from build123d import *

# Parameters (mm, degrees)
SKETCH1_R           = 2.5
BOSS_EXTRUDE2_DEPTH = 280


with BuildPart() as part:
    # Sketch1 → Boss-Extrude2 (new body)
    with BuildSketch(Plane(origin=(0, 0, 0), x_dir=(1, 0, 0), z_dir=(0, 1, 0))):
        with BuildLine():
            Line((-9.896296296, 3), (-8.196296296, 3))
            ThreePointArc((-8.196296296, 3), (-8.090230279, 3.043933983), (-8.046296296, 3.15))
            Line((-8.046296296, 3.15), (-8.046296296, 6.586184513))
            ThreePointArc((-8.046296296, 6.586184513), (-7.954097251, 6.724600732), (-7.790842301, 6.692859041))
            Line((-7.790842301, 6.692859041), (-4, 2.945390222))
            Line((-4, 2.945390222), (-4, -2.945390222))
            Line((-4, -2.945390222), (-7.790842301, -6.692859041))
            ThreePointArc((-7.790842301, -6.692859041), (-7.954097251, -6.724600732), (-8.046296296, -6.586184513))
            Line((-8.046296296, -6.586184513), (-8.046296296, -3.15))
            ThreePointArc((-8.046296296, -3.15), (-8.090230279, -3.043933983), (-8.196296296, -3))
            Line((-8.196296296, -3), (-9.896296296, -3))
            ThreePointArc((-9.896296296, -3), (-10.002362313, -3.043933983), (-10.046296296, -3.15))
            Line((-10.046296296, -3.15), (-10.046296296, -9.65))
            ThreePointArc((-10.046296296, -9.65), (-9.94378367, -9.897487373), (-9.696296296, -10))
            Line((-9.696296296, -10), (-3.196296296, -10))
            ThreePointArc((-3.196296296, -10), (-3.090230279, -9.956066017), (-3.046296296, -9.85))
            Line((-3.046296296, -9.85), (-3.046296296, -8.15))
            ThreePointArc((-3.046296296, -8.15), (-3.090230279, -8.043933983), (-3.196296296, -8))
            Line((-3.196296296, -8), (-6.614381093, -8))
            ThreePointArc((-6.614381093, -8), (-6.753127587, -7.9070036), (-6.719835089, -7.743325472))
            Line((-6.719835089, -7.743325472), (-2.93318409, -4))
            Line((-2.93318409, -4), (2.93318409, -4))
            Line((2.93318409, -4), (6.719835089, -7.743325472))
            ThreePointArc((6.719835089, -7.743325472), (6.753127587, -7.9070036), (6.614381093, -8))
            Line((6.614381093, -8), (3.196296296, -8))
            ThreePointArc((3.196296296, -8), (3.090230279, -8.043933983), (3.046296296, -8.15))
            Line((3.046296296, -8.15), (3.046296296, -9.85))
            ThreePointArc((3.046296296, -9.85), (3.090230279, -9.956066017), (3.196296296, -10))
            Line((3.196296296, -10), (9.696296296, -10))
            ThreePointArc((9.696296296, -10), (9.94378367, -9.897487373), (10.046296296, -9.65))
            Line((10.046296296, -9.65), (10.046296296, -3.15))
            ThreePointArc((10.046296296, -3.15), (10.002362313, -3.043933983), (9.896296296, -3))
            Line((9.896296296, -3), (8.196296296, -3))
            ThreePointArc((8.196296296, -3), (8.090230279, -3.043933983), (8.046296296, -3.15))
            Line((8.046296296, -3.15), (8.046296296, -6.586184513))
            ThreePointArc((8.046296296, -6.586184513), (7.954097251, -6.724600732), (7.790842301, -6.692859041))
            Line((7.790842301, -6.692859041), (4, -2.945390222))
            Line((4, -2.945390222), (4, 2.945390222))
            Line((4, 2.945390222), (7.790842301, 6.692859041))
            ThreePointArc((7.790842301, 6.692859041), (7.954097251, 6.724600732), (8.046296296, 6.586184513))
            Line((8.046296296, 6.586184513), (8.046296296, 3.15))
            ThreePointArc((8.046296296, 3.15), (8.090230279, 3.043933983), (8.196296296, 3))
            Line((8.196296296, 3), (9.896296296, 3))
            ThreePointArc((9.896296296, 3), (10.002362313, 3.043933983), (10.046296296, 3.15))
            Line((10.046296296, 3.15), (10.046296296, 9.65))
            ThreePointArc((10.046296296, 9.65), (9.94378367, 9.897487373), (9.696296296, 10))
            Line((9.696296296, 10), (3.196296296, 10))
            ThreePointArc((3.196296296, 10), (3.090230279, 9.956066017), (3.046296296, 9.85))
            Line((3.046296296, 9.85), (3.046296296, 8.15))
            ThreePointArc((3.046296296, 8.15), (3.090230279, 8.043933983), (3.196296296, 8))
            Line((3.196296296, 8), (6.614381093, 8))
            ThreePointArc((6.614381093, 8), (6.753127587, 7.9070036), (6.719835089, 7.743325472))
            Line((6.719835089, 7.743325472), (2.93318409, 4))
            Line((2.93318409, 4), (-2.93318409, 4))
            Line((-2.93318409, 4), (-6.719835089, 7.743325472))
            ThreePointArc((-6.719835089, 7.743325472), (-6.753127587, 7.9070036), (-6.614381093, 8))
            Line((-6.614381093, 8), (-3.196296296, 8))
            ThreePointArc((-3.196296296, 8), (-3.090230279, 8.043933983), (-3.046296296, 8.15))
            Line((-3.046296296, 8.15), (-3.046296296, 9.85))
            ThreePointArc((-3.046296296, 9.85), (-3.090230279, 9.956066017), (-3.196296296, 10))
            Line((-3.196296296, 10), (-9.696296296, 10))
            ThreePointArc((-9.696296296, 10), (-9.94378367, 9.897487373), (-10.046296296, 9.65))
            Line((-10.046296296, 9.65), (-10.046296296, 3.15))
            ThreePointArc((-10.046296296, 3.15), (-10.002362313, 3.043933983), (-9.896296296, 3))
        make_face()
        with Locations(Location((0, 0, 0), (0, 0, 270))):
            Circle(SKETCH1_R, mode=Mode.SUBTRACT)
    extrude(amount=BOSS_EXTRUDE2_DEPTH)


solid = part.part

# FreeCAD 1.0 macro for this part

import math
import FreeCAD as App
import Part
import Sketcher

doc = App.newDocument("Part")
body = doc.addObject("PartDesign::Body", "Body")

sketch1 = body.newObject("Sketcher::SketchObject", "Sketch")
sketch1.AttachmentSupport = (doc.getObject("XZ_Plane"), [""])
sketch1.MapMode = "FlatFace"
sketch1.addGeometry([
    Part.LineSegment(App.Vector(-9.9, -3, 0), App.Vector(-8.2, -3, 0)),
    Part.ArcOfCircle(Part.Circle(App.Vector(-8.2, -3.15, 0), App.Vector(0, 0, 1), 0.15), math.radians(0), math.radians(90)),
    Part.LineSegment(App.Vector(-8.05, -3.15, 0), App.Vector(-8.05, -6.59, 0)),
    Part.ArcOfCircle(Part.Circle(App.Vector(-7.9, -6.59, 0), App.Vector(0, 0, 1), 0.15), math.radians(180), math.radians(315)),
    Part.LineSegment(App.Vector(-7.79, -6.69, 0), App.Vector(-4, -2.95, 0)),
    Part.LineSegment(App.Vector(-4, -2.95, 0), App.Vector(-4, 2.95, 0)),
    Part.LineSegment(App.Vector(-4, 2.95, 0), App.Vector(-7.79, 6.69, 0)),
    Part.ArcOfCircle(Part.Circle(App.Vector(-7.9, 6.59, 0), App.Vector(0, 0, 1), 0.15), math.radians(45), math.radians(180)),
    Part.LineSegment(App.Vector(-8.05, 6.59, 0), App.Vector(-8.05, 3.15, 0)),
    Part.ArcOfCircle(Part.Circle(App.Vector(-8.2, 3.15, 0), App.Vector(0, 0, 1), 0.15), math.radians(-90), math.radians(0)),
    Part.LineSegment(App.Vector(-8.2, 3, 0), App.Vector(-9.9, 3, 0)),
    Part.ArcOfCircle(Part.Circle(App.Vector(-9.9, 3.15, 0), App.Vector(0, 0, 1), 0.15), math.radians(-180), math.radians(-90)),
    Part.LineSegment(App.Vector(-10.05, 3.15, 0), App.Vector(-10.05, 9.65, 0)),
    Part.ArcOfCircle(Part.Circle(App.Vector(-9.7, 9.65, 0), App.Vector(0, 0, 1), 0.35), math.radians(90), math.radians(180)),
    Part.LineSegment(App.Vector(-9.7, 10, 0), App.Vector(-3.2, 10, 0)),
    Part.ArcOfCircle(Part.Circle(App.Vector(-3.2, 9.85, 0), App.Vector(0, 0, 1), 0.15), math.radians(0), math.radians(90)),
    Part.LineSegment(App.Vector(-3.05, 9.85, 0), App.Vector(-3.05, 8.15, 0)),
    Part.ArcOfCircle(Part.Circle(App.Vector(-3.2, 8.15, 0), App.Vector(0, 0, 1), 0.15), math.radians(-90), math.radians(0)),
    Part.LineSegment(App.Vector(-3.2, 8, 0), App.Vector(-6.61, 8, 0)),
    Part.ArcOfCircle(Part.Circle(App.Vector(-6.61, 7.85, 0), App.Vector(0, 0, 1), 0.15), math.radians(90), math.radians(225)),
    Part.LineSegment(App.Vector(-6.72, 7.74, 0), App.Vector(-2.93, 4, 0)),
    Part.LineSegment(App.Vector(-2.93, 4, 0), App.Vector(2.93, 4, 0)),
    Part.LineSegment(App.Vector(2.93, 4, 0), App.Vector(6.72, 7.74, 0)),
    Part.ArcOfCircle(Part.Circle(App.Vector(6.61, 7.85, 0), App.Vector(0, 0, 1), 0.15), math.radians(-45), math.radians(90)),
    Part.LineSegment(App.Vector(6.61, 8, 0), App.Vector(3.2, 8, 0)),
    Part.ArcOfCircle(Part.Circle(App.Vector(3.2, 8.15, 0), App.Vector(0, 0, 1), 0.15), math.radians(-180), math.radians(-90)),
    Part.LineSegment(App.Vector(3.05, 8.15, 0), App.Vector(3.05, 9.85, 0)),
    Part.ArcOfCircle(Part.Circle(App.Vector(3.2, 9.85, 0), App.Vector(0, 0, 1), 0.15), math.radians(90), math.radians(180)),
    Part.LineSegment(App.Vector(3.2, 10, 0), App.Vector(9.7, 10, 0)),
    Part.ArcOfCircle(Part.Circle(App.Vector(9.7, 9.65, 0), App.Vector(0, 0, 1), 0.35), math.radians(0), math.radians(90)),
    Part.LineSegment(App.Vector(10.05, 9.65, 0), App.Vector(10.05, 3.15, 0)),
    Part.ArcOfCircle(Part.Circle(App.Vector(9.9, 3.15, 0), App.Vector(0, 0, 1), 0.15), math.radians(-90), math.radians(0)),
    Part.LineSegment(App.Vector(9.9, 3, 0), App.Vector(8.2, 3, 0)),
    Part.ArcOfCircle(Part.Circle(App.Vector(8.2, 3.15, 0), App.Vector(0, 0, 1), 0.15), math.radians(-180), math.radians(-90)),
    Part.LineSegment(App.Vector(8.05, 3.15, 0), App.Vector(8.05, 6.59, 0)),
    Part.ArcOfCircle(Part.Circle(App.Vector(7.9, 6.59, 0), App.Vector(0, 0, 1), 0.15), math.radians(0), math.radians(135)),
    Part.LineSegment(App.Vector(7.79, 6.69, 0), App.Vector(4, 2.95, 0)),
    Part.LineSegment(App.Vector(4, 2.95, 0), App.Vector(4, -2.95, 0)),
    Part.LineSegment(App.Vector(4, -2.95, 0), App.Vector(7.79, -6.69, 0)),
    Part.ArcOfCircle(Part.Circle(App.Vector(7.9, -6.59, 0), App.Vector(0, 0, 1), 0.15), math.radians(-135), math.radians(0)),
    Part.LineSegment(App.Vector(8.05, -6.59, 0), App.Vector(8.05, -3.15, 0)),
    Part.ArcOfCircle(Part.Circle(App.Vector(8.2, -3.15, 0), App.Vector(0, 0, 1), 0.15), math.radians(90), math.radians(180)),
    Part.LineSegment(App.Vector(8.2, -3, 0), App.Vector(9.9, -3, 0)),
    Part.ArcOfCircle(Part.Circle(App.Vector(9.9, -3.15, 0), App.Vector(0, 0, 1), 0.15), math.radians(0), math.radians(90)),
    Part.LineSegment(App.Vector(10.05, -3.15, 0), App.Vector(10.05, -9.65, 0)),
    Part.ArcOfCircle(Part.Circle(App.Vector(9.7, -9.65, 0), App.Vector(0, 0, 1), 0.35), math.radians(-90), math.radians(0)),
    Part.LineSegment(App.Vector(9.7, -10, 0), App.Vector(3.2, -10, 0)),
    Part.ArcOfCircle(Part.Circle(App.Vector(3.2, -9.85, 0), App.Vector(0, 0, 1), 0.15), math.radians(-180), math.radians(-90)),
    Part.LineSegment(App.Vector(3.05, -9.85, 0), App.Vector(3.05, -8.15, 0)),
    Part.ArcOfCircle(Part.Circle(App.Vector(3.2, -8.15, 0), App.Vector(0, 0, 1), 0.15), math.radians(90), math.radians(180)),
    Part.LineSegment(App.Vector(3.2, -8, 0), App.Vector(6.61, -8, 0)),
    Part.ArcOfCircle(Part.Circle(App.Vector(6.61, -7.85, 0), App.Vector(0, 0, 1), 0.15), math.radians(-90), math.radians(45)),
    Part.LineSegment(App.Vector(6.72, -7.74, 0), App.Vector(2.93, -4, 0)),
    Part.LineSegment(App.Vector(2.93, -4, 0), App.Vector(-2.93, -4, 0)),
    Part.LineSegment(App.Vector(-2.93, -4, 0), App.Vector(-6.72, -7.74, 0)),
    Part.ArcOfCircle(Part.Circle(App.Vector(-6.61, -7.85, 0), App.Vector(0, 0, 1), 0.15), math.radians(135), math.radians(270)),
    Part.LineSegment(App.Vector(-6.61, -8, 0), App.Vector(-3.2, -8, 0)),
    Part.ArcOfCircle(Part.Circle(App.Vector(-3.2, -8.15, 0), App.Vector(0, 0, 1), 0.15), math.radians(0), math.radians(90)),
    Part.LineSegment(App.Vector(-3.05, -8.15, 0), App.Vector(-3.05, -9.85, 0)),
    Part.ArcOfCircle(Part.Circle(App.Vector(-3.2, -9.85, 0), App.Vector(0, 0, 1), 0.15), math.radians(-90), math.radians(0)),
    Part.LineSegment(App.Vector(-3.2, -10, 0), App.Vector(-9.7, -10, 0)),
    Part.ArcOfCircle(Part.Circle(App.Vector(-9.7, -9.65, 0), App.Vector(0, 0, 1), 0.35), math.radians(180), math.radians(270)),
    Part.LineSegment(App.Vector(-10.05, -9.65, 0), App.Vector(-10.05, -3.15, 0)),
    Part.ArcOfCircle(Part.Circle(App.Vector(-9.9, -3.15, 0), App.Vector(0, 0, 1), 0.15), math.radians(90), math.radians(180)),
    Part.Circle(App.Vector(0, 0, 0), App.Vector(0, 0, 1), 2.5),
], False)
sketch1.addConstraint([
    Sketcher.Constraint("Tangent", 0, 2, 1, 2),
    Sketcher.Constraint("Tangent", 1, 1, 2, 1),
    Sketcher.Constraint("Tangent", 2, 2, 3, 1),
    Sketcher.Constraint("Tangent", 3, 2, 4, 1),
    Sketcher.Constraint("Coincident", 4, 2, 5, 1),
    Sketcher.Constraint("Coincident", 5, 2, 6, 1),
    Sketcher.Constraint("Tangent", 6, 2, 7, 1),
    Sketcher.Constraint("Tangent", 7, 2, 8, 1),
    Sketcher.Constraint("Tangent", 8, 2, 9, 2),
    Sketcher.Constraint("Tangent", 9, 1, 10, 1),
    Sketcher.Constraint("Tangent", 10, 2, 11, 2),
    Sketcher.Constraint("Tangent", 11, 1, 12, 1),
    Sketcher.Constraint("Tangent", 12, 2, 13, 2),
    Sketcher.Constraint("Tangent", 13, 1, 14, 1),
    Sketcher.Constraint("Tangent", 14, 2, 15, 2),
    Sketcher.Constraint("Tangent", 15, 1, 16, 1),
    Sketcher.Constraint("Tangent", 16, 2, 17, 2),
    Sketcher.Constraint("Tangent", 17, 1, 18, 1),
    Sketcher.Constraint("Tangent", 18, 2, 19, 1),
    Sketcher.Constraint("Tangent", 19, 2, 20, 1),
    Sketcher.Constraint("Coincident", 20, 2, 21, 1),
    Sketcher.Constraint("Coincident", 21, 2, 22, 1),
    Sketcher.Constraint("Tangent", 22, 2, 23, 1),
    Sketcher.Constraint("Tangent", 23, 2, 24, 1),
    Sketcher.Constraint("Tangent", 24, 2, 25, 2),
    Sketcher.Constraint("Tangent", 25, 1, 26, 1),
    Sketcher.Constraint("Tangent", 26, 2, 27, 2),
    Sketcher.Constraint("Tangent", 27, 1, 28, 1),
    Sketcher.Constraint("Tangent", 28, 2, 29, 2),
    Sketcher.Constraint("Tangent", 29, 1, 30, 1),
    Sketcher.Constraint("Tangent", 30, 2, 31, 2),
    Sketcher.Constraint("Tangent", 31, 1, 32, 1),
    Sketcher.Constraint("Tangent", 32, 2, 33, 2),
    Sketcher.Constraint("Tangent", 33, 1, 34, 1),
    Sketcher.Constraint("Tangent", 34, 2, 35, 1),
    Sketcher.Constraint("Tangent", 35, 2, 36, 1),
    Sketcher.Constraint("Coincident", 36, 2, 37, 1),
    Sketcher.Constraint("Coincident", 37, 2, 38, 1),
    Sketcher.Constraint("Tangent", 38, 2, 39, 1),
    Sketcher.Constraint("Tangent", 39, 2, 40, 1),
    Sketcher.Constraint("Tangent", 40, 2, 41, 2),
    Sketcher.Constraint("Tangent", 41, 1, 42, 1),
    Sketcher.Constraint("Tangent", 42, 2, 43, 2),
    Sketcher.Constraint("Tangent", 43, 1, 44, 1),
    Sketcher.Constraint("Tangent", 44, 2, 45, 2),
    Sketcher.Constraint("Tangent", 45, 1, 46, 1),
    Sketcher.Constraint("Tangent", 46, 2, 47, 2),
    Sketcher.Constraint("Tangent", 47, 1, 48, 1),
    Sketcher.Constraint("Tangent", 48, 2, 49, 2),
    Sketcher.Constraint("Tangent", 49, 1, 50, 1),
    Sketcher.Constraint("Tangent", 50, 2, 51, 1),
    Sketcher.Constraint("Tangent", 51, 2, 52, 1),
    Sketcher.Constraint("Coincident", 52, 2, 53, 1),
    Sketcher.Constraint("Coincident", 53, 2, 54, 1),
    Sketcher.Constraint("Tangent", 54, 2, 55, 1),
    Sketcher.Constraint("Tangent", 55, 2, 56, 1),
    Sketcher.Constraint("Tangent", 56, 2, 57, 2),
    Sketcher.Constraint("Tangent", 57, 1, 58, 1),
    Sketcher.Constraint("Tangent", 58, 2, 59, 2),
    Sketcher.Constraint("Tangent", 59, 1, 60, 1),
    Sketcher.Constraint("Tangent", 60, 2, 61, 2),
    Sketcher.Constraint("Tangent", 61, 1, 62, 1),
    Sketcher.Constraint("Tangent", 62, 2, 63, 2),
    Sketcher.Constraint("Tangent", 63, 1, 0, 1),
    Sketcher.Constraint("Horizontal", 0),
    Sketcher.Constraint("Vertical", 2),
    Sketcher.Constraint("Vertical", 5),
    Sketcher.Constraint("Vertical", 8),
    Sketcher.Constraint("Horizontal", 10),
    Sketcher.Constraint("Vertical", 12),
    Sketcher.Constraint("Horizontal", 14),
    Sketcher.Constraint("Vertical", 16),
    Sketcher.Constraint("Horizontal", 18),
    Sketcher.Constraint("Horizontal", 21),
    Sketcher.Constraint("Horizontal", 24),
    Sketcher.Constraint("Vertical", 26),
    Sketcher.Constraint("Horizontal", 28),
    Sketcher.Constraint("Vertical", 30),
    Sketcher.Constraint("Horizontal", 32),
    Sketcher.Constraint("Vertical", 34),
    Sketcher.Constraint("Vertical", 37),
    Sketcher.Constraint("Vertical", 40),
    Sketcher.Constraint("Horizontal", 42),
    Sketcher.Constraint("Vertical", 44),
    Sketcher.Constraint("Horizontal", 46),
    Sketcher.Constraint("Vertical", 48),
    Sketcher.Constraint("Horizontal", 50),
    Sketcher.Constraint("Horizontal", 53),
    Sketcher.Constraint("Horizontal", 56),
    Sketcher.Constraint("Vertical", 58),
    Sketcher.Constraint("Horizontal", 60),
    Sketcher.Constraint("Vertical", 62),
    Sketcher.Constraint("Coincident", 64, 3, -1, 1),
    Sketcher.Constraint("Equal", 1, 3),
    Sketcher.Constraint("Equal", 3, 7),
    Sketcher.Constraint("Equal", 7, 9),
    Sketcher.Constraint("Equal", 9, 11),
    Sketcher.Constraint("Equal", 11, 15),
    Sketcher.Constraint("Equal", 15, 17),
    Sketcher.Constraint("Equal", 17, 19),
    Sketcher.Constraint("Equal", 19, 23),
    Sketcher.Constraint("Equal", 23, 25),
    Sketcher.Constraint("Equal", 25, 27),
    Sketcher.Constraint("Equal", 13, 29),
    Sketcher.Constraint("Equal", 27, 31),
    Sketcher.Constraint("Equal", 31, 33),
    Sketcher.Constraint("Equal", 33, 35),
    Sketcher.Constraint("Equal", 35, 39),
    Sketcher.Constraint("Equal", 39, 41),
    Sketcher.Constraint("Equal", 41, 43),
    Sketcher.Constraint("Equal", 29, 45),
    Sketcher.Constraint("Equal", 43, 47),
    Sketcher.Constraint("Equal", 47, 49),
    Sketcher.Constraint("Equal", 49, 51),
    Sketcher.Constraint("Equal", 51, 55),
    Sketcher.Constraint("Equal", 55, 57),
    Sketcher.Constraint("Equal", 57, 59),
    Sketcher.Constraint("Equal", 45, 61),
    Sketcher.Constraint("Equal", 59, 63),
    Sketcher.Constraint("Symmetric", 1, 3, 33, 3, -1, 1),
    Sketcher.Constraint("Symmetric", 7, 3, 39, 3, -1, 1),
    Sketcher.Constraint("Symmetric", 11, 3, 43, 3, -1, 1),
    Sketcher.Constraint("Symmetric", 15, 3, 47, 3, -1, 1),
    Sketcher.Constraint("Symmetric", 19, 3, 51, 3, -1, 1),
    Sketcher.Constraint("Symmetric", 23, 3, 55, 3, -1, 1),
    Sketcher.Constraint("Symmetric", 27, 3, 59, 3, -1, 1),
    Sketcher.Constraint("Symmetric", 3, 2, 35, 2, -1, 1),
    Sketcher.Constraint("Symmetric", 5, 2, 37, 2, -1, 1),
    Sketcher.Constraint("Symmetric", 20, 2, 52, 2, -1, 1),
    Sketcher.Constraint("Symmetric", 19, 3, 23, 3, -2),
    Sketcher.Constraint("Symmetric", 15, 3, 27, 3, -2),
    Sketcher.Constraint("Symmetric", 11, 3, 31, 3, -2),
    Sketcher.Constraint("Symmetric", 7, 3, 35, 3, -2),
    Sketcher.Constraint("Parallel", 6, 20),
    Sketcher.Constraint("Parallel", 4, 22),
    Sketcher.Constraint("Parallel", 36, 54),
    Sketcher.Constraint("Horizontal", 19, 2, 22, 2),
    Sketcher.Constraint("Vertical", 13, 3, 61, 3),
    Sketcher.Constraint("Equal", 60, 12),
    Sketcher.Constraint("Equal", 42, 16),
    Sketcher.Constraint("Diameter", 64, 5.0),
    Sketcher.Constraint("Radius", 1, 0.15),
    Sketcher.Constraint("Radius", 13, 0.35),
    Sketcher.Constraint("DistanceX", 0, 1, 0, 2, 1.7),
    Sketcher.Constraint("DistanceX", 14, 1, 14, 2, 6.5),
    Sketcher.Constraint("DistanceY", 0, 2, -1, 1, 3.0),
    Sketcher.Constraint("DistanceX", 4, 2, -1, 1, 4.0),
    Sketcher.Constraint("DistanceY", -1, 1, 20, 2, 4.0),
    Sketcher.Constraint("DistanceX", 21, 1, 21, 2, 5.866368),
    Sketcher.Constraint("DistanceY", 5, 1, 5, 2, 5.89078),
    Sketcher.Constraint("Distance", 4, 5.330479),
    Sketcher.Constraint("DistanceX", 18, 2, 18, 1, 3.418085),
])
pad1 = body.newObject("PartDesign::Pad", "Pad")
pad1.Profile = sketch1
pad1.Length = 280
pad1.Reversed = True

doc.recompute()
